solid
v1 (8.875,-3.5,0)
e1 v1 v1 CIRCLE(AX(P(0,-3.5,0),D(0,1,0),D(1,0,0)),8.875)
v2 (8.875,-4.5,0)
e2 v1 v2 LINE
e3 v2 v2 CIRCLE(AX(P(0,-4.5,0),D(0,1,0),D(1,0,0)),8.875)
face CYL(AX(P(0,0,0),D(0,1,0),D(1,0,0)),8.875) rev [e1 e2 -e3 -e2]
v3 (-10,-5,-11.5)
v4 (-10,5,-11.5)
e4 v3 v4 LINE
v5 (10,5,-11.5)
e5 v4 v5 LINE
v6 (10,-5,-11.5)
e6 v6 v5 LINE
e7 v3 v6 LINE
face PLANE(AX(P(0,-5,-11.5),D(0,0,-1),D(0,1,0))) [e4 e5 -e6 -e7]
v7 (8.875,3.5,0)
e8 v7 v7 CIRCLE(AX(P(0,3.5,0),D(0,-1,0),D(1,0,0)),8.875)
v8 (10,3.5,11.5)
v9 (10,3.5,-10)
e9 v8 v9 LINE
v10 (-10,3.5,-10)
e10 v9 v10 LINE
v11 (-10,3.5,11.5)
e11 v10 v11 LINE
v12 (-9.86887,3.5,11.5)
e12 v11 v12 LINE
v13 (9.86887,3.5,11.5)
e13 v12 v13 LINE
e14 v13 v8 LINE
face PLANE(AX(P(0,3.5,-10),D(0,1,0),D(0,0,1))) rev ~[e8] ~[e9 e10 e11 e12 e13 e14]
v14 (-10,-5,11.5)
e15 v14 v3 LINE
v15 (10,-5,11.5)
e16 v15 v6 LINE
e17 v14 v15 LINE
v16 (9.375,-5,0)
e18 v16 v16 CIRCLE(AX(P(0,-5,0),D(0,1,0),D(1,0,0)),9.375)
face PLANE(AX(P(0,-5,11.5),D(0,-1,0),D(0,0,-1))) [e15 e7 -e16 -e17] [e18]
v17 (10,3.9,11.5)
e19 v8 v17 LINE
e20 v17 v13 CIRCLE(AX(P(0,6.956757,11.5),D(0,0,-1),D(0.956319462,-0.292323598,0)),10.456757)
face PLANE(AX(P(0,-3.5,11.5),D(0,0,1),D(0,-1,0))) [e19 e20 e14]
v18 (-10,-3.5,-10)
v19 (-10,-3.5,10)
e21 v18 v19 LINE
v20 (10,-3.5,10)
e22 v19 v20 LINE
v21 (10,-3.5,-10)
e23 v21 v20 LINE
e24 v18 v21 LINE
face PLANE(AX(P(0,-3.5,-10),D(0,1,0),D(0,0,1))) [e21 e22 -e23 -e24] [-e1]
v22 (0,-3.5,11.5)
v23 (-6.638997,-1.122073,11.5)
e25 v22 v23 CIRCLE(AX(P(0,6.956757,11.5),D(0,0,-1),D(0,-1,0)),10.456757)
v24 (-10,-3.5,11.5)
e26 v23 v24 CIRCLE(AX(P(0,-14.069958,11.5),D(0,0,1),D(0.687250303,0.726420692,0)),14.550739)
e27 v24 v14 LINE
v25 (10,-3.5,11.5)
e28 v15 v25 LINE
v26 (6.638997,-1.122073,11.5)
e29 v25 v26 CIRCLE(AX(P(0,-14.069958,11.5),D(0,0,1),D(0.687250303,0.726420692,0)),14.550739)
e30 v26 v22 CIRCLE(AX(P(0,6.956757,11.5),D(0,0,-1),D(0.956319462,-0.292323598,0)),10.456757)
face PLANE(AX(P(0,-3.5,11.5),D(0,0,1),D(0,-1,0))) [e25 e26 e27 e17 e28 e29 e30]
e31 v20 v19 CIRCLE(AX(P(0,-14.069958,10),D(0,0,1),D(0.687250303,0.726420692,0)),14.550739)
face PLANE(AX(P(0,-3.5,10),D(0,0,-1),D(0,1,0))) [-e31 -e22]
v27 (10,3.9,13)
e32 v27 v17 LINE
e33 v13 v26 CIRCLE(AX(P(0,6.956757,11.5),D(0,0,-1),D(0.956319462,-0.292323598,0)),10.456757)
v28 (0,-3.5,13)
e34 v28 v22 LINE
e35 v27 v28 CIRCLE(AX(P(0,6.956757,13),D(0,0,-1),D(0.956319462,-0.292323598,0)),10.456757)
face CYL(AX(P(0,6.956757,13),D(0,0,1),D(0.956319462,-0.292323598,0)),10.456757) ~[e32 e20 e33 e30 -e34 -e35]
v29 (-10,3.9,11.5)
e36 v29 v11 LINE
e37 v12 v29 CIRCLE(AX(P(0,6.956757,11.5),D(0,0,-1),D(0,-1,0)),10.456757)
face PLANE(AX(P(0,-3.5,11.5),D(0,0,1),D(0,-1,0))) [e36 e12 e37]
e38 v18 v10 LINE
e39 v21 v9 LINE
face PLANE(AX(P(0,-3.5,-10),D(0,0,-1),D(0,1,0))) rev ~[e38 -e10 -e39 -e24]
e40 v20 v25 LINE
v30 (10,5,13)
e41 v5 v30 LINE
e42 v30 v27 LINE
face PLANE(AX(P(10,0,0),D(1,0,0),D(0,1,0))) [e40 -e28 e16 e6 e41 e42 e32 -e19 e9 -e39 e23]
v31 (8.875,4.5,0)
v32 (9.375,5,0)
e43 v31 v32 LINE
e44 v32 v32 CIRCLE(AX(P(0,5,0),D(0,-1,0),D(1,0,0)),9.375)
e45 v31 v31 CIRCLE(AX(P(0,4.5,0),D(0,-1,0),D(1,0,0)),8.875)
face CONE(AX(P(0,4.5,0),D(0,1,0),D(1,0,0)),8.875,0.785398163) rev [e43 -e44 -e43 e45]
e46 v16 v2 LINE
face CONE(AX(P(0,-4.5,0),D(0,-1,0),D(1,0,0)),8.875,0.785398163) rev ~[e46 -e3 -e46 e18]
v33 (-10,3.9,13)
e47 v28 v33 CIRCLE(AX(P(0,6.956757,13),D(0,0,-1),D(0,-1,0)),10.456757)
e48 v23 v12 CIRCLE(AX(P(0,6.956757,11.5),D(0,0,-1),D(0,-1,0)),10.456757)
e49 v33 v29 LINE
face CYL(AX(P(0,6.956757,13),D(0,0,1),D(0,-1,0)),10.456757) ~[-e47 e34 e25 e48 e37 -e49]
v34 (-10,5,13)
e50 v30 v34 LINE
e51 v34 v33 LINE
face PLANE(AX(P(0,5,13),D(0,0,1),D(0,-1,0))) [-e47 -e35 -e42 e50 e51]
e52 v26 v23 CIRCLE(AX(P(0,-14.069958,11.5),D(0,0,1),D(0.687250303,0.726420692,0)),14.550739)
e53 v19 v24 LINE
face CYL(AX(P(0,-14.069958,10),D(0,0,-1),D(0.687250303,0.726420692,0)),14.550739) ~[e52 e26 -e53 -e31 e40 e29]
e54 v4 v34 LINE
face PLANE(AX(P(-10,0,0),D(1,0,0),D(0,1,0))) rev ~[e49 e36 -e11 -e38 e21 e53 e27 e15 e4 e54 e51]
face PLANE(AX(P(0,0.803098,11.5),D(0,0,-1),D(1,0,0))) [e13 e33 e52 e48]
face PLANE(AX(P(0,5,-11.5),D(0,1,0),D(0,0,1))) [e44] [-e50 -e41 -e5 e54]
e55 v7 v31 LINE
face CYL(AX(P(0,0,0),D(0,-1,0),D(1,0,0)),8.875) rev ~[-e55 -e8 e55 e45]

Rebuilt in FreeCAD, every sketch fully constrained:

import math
import FreeCAD as App
import Part
import Sketcher
from FreeCAD import Vector
Q = App.Units.Quantity


def edges_at(feature, points):
    """Names of the edges that pass closest to the given points."""
    edges = feature.Shape.Edges
    near = lambda p: min(range(len(edges)), key=lambda i: edges[i].distToShape(Part.Vertex(*p))[0])
    return sorted({f"Edge{near(p) + 1}" for p in points})

doc = App.newDocument("Part")
body = doc.addObject("PartDesign::Body", "Body")

# Sketch on YZ plane
sketch1 = body.newObject("Sketcher::SketchObject", "Sketch")
sketch1.AttachmentSupport = (doc.getObject("YZ_Plane"), [""])
sketch1.MapMode = "FlatFace"
sketch1.addGeometry([
    Part.LineSegment(Vector(-3.5, 11.5, 0), Vector(-5, 11.5, 0)),  # 0
    Part.LineSegment(Vector(-5, 11.5, 0), Vector(-5, -11.5, 0)),  # 1
    Part.LineSegment(Vector(-5, -11.5, 0), Vector(5, -11.5, 0)),  # 2
    Part.LineSegment(Vector(5, -11.5, 0), Vector(5, 13, 0)),  # 3
    Part.LineSegment(Vector(5, 13, 0), Vector(-3.5, 13, 0)),  # 4
    Part.LineSegment(Vector(-3.5, 13, 0), Vector(-3.5, 11.5, 0)),  # 5
    Part.LineSegment(Vector(3.5, -10, 0), Vector(-3.5, -10, 0)),  # 6
    Part.LineSegment(Vector(-3.5, -10, 0), Vector(-3.5, 10, 0)),  # 7
    Part.LineSegment(Vector(-3.5, 10, 0), Vector(3.5, 10, 0)),  # 8
    Part.LineSegment(Vector(3.5, 10, 0), Vector(3.5, -10, 0)),  # 9
], False)
sketch1.addConstraint([
    Sketcher.Constraint("Coincident", 0, 2, 1, 1),
    Sketcher.Constraint("Coincident", 1, 2, 2, 1),
    Sketcher.Constraint("Coincident", 2, 2, 3, 1),
    Sketcher.Constraint("Coincident", 3, 2, 4, 1),
    Sketcher.Constraint("Coincident", 4, 2, 5, 1),
    Sketcher.Constraint("Coincident", 5, 2, 0, 1),
    Sketcher.Constraint("Coincident", 6, 2, 7, 1),
    Sketcher.Constraint("Coincident", 7, 2, 8, 1),
    Sketcher.Constraint("Coincident", 8, 2, 9, 1),
    Sketcher.Constraint("Coincident", 9, 2, 6, 1),
    Sketcher.Constraint("Horizontal", 0),
    Sketcher.Constraint("Vertical", 1),
    Sketcher.Constraint("Horizontal", 2),
    Sketcher.Constraint("Vertical", 3),
    Sketcher.Constraint("Horizontal", 4),
    Sketcher.Constraint("Vertical", 5),
    Sketcher.Constraint("Horizontal", 6),
    Sketcher.Constraint("Vertical", 7),
    Sketcher.Constraint("Horizontal", 8),
    Sketcher.Constraint("Vertical", 9),
    Sketcher.Constraint("Symmetric", 0, 2, 2, 2, -1, 1),
    Sketcher.Constraint("Symmetric", 6, 2, 8, 2, -1, 1),
    Sketcher.Constraint("Vertical", 5, 2, 6, 2),
    Sketcher.Constraint("Equal", 0, 5),
    Sketcher.Constraint("DistanceX", 2, 1, 2, 2, Q("10 mm")),
    Sketcher.Constraint("DistanceX", 6, 2, 6, 1, Q("7 mm")),
    Sketcher.Constraint("DistanceY", 1, 2, 1, 1, Q("23 mm")),
    Sketcher.Constraint("DistanceY", 7, 1, 7, 2, Q("20 mm")),
])
pad1 = body.newObject("PartDesign::Pad", "Pad")
pad1.Profile = sketch1
pad1.Type = "TwoLengths"
pad1.Length = 10
pad1.Length2 = 10

# Sketch on XZ plane
sketch2 = body.newObject("Sketcher::SketchObject", "Sketch001")
sketch2.AttachmentSupport = (doc.getObject("XZ_Plane"), [""])
sketch2.MapMode = "FlatFace"
sketch2.addGeometry(Part.Circle(Vector(0, 0, 0), Vector(0, 0, 1), 8.875), False)
sketch2.addConstraint([
    Sketcher.Constraint("Coincident", 0, 3, -1, 1),
    Sketcher.Constraint("Diameter", 0, Q("17.75 mm")),
])
pocket1 = body.newObject("PartDesign::Pocket", "Pocket")
pocket1.Profile = sketch2
pocket1.Type = "ThroughAll"
pocket1.Midplane = True

# Sketch on XY plane
sketch3 = body.newObject("Sketcher::SketchObject", "Sketch002")
sketch3.AttachmentSupport = (doc.getObject("XY_Plane"), [""])
sketch3.MapMode = "FlatFace"
sketch3.AttachmentOffset = App.Placement(Vector(0, 0, 13), App.Rotation())
sketch3.addGeometry([
    Part.ArcOfCircle(Part.Circle(Vector(0, 6.956757, 0), Vector(0, 0, 1), 10.456757), math.radians(-163.002882), math.radians(-90)),  # 0
    Part.LineSegment(Vector(-10, 3.9, 0), Vector(-10, -3.5, 0)),  # 1
    Part.LineSegment(Vector(-10, -3.5, 0), Vector(0, -3.5, 0)),  # 2
    Part.ArcOfCircle(Part.Circle(Vector(0, 6.956757, 0), Vector(0, 0, 1), 10.456757), math.radians(-90), math.radians(-16.997118)),  # 3
    Part.LineSegment(Vector(0, -3.5, 0), Vector(10, -3.5, 0)),  # 4
    Part.LineSegment(Vector(10, -3.5, 0), Vector(10, 3.9, 0)),  # 5
], False)
sketch3.addConstraint([
    Sketcher.Constraint("Coincident", 0, 1, 1, 1),
    Sketcher.Constraint("Coincident", 1, 2, 2, 1),
    Sketcher.Constraint("Tangent", 2, 2, 0, 2),
    Sketcher.Constraint("Tangent", 3, 1, 4, 1),
    Sketcher.Constraint("Coincident", 4, 2, 5, 1),
    Sketcher.Constraint("Coincident", 5, 2, 3, 2),
    Sketcher.Constraint("Vertical", 1),
    Sketcher.Constraint("Horizontal", 2),
    Sketcher.Constraint("Horizontal", 4),
    Sketcher.Constraint("Vertical", 5),
    Sketcher.Constraint("Coincident", 3, 3, 0, 3),
    Sketcher.Constraint("Equal", 0, 3),
    Sketcher.Constraint("Symmetric", 0, 1, 5, 2, -2),
    Sketcher.Constraint("DistanceX", 2, 1, 2, 2, Q("10 mm")),
    Sketcher.Constraint("DistanceY", 1, 2, 1, 1, Q("7.4 mm")),
    Sketcher.Constraint("DistanceY", -1, 1, 0, 1, Q("3.9 mm")),
])
pocket2 = body.newObject("PartDesign::Pocket", "Pocket001")
pocket2.Profile = sketch3
pocket2.Length = 1.5

# Sketch on XY plane
sketch4 = body.newObject("Sketcher::SketchObject", "Sketch003")
sketch4.AttachmentSupport = (doc.getObject("XY_Plane"), [""])
sketch4.MapMode = "FlatFace"
sketch4.AttachmentOffset = App.Placement(Vector(0, 0, 10), App.Rotation())
sketch4.addGeometry([
    Part.ArcOfCircle(Part.Circle(Vector(0, -14.069958, 0), Vector(0, 0, 1), 14.550739), math.radians(46.587161), math.radians(133.412839)),
    Part.LineSegment(Vector(-10, -3.5, 0), Vector(-10, 3.5, 0)),
    Part.LineSegment(Vector(-10, 3.5, 0), Vector(10, 3.5, 0)),
    Part.LineSegment(Vector(10, 3.5, 0), Vector(10, -3.5, 0)),
], False)
sketch4.addConstraint([
    Sketcher.Constraint("Coincident", 0, 2, 1, 1),
    Sketcher.Constraint("Coincident", 1, 2, 2, 1),
    Sketcher.Constraint("Coincident", 2, 2, 3, 1),
    Sketcher.Constraint("Coincident", 3, 2, 0, 1),
    Sketcher.Constraint("Vertical", 1),
    Sketcher.Constraint("Horizontal", 2),
    Sketcher.Constraint("Vertical", 3),
    Sketcher.Constraint("Symmetric", 0, 2, 2, 2, -1, 1),
    Sketcher.Constraint("PointOnObject", 0, 3, -2),
    Sketcher.Constraint("DistanceX", 2, 1, 2, 2, Q("20 mm")),
    Sketcher.Constraint("DistanceY", 1, 1, 1, 2, Q("7 mm")),
    Sketcher.Constraint("Radius", 0, Q("14.550739 mm")),
])
pocket3 = body.newObject("PartDesign::Pocket", "Pocket002")
pocket3.Profile = sketch4
pocket3.Length = 1.5
pocket3.Reversed = True
doc.recompute()

chamfer = body.newObject("PartDesign::Chamfer", "Chamfer")
chamfer.Base = (pocket3, edges_at(pocket3, [(-8.875, -5, 0), (-8.875, 5, 0)]))
chamfer.Size = 0.5

doc.recompute()
